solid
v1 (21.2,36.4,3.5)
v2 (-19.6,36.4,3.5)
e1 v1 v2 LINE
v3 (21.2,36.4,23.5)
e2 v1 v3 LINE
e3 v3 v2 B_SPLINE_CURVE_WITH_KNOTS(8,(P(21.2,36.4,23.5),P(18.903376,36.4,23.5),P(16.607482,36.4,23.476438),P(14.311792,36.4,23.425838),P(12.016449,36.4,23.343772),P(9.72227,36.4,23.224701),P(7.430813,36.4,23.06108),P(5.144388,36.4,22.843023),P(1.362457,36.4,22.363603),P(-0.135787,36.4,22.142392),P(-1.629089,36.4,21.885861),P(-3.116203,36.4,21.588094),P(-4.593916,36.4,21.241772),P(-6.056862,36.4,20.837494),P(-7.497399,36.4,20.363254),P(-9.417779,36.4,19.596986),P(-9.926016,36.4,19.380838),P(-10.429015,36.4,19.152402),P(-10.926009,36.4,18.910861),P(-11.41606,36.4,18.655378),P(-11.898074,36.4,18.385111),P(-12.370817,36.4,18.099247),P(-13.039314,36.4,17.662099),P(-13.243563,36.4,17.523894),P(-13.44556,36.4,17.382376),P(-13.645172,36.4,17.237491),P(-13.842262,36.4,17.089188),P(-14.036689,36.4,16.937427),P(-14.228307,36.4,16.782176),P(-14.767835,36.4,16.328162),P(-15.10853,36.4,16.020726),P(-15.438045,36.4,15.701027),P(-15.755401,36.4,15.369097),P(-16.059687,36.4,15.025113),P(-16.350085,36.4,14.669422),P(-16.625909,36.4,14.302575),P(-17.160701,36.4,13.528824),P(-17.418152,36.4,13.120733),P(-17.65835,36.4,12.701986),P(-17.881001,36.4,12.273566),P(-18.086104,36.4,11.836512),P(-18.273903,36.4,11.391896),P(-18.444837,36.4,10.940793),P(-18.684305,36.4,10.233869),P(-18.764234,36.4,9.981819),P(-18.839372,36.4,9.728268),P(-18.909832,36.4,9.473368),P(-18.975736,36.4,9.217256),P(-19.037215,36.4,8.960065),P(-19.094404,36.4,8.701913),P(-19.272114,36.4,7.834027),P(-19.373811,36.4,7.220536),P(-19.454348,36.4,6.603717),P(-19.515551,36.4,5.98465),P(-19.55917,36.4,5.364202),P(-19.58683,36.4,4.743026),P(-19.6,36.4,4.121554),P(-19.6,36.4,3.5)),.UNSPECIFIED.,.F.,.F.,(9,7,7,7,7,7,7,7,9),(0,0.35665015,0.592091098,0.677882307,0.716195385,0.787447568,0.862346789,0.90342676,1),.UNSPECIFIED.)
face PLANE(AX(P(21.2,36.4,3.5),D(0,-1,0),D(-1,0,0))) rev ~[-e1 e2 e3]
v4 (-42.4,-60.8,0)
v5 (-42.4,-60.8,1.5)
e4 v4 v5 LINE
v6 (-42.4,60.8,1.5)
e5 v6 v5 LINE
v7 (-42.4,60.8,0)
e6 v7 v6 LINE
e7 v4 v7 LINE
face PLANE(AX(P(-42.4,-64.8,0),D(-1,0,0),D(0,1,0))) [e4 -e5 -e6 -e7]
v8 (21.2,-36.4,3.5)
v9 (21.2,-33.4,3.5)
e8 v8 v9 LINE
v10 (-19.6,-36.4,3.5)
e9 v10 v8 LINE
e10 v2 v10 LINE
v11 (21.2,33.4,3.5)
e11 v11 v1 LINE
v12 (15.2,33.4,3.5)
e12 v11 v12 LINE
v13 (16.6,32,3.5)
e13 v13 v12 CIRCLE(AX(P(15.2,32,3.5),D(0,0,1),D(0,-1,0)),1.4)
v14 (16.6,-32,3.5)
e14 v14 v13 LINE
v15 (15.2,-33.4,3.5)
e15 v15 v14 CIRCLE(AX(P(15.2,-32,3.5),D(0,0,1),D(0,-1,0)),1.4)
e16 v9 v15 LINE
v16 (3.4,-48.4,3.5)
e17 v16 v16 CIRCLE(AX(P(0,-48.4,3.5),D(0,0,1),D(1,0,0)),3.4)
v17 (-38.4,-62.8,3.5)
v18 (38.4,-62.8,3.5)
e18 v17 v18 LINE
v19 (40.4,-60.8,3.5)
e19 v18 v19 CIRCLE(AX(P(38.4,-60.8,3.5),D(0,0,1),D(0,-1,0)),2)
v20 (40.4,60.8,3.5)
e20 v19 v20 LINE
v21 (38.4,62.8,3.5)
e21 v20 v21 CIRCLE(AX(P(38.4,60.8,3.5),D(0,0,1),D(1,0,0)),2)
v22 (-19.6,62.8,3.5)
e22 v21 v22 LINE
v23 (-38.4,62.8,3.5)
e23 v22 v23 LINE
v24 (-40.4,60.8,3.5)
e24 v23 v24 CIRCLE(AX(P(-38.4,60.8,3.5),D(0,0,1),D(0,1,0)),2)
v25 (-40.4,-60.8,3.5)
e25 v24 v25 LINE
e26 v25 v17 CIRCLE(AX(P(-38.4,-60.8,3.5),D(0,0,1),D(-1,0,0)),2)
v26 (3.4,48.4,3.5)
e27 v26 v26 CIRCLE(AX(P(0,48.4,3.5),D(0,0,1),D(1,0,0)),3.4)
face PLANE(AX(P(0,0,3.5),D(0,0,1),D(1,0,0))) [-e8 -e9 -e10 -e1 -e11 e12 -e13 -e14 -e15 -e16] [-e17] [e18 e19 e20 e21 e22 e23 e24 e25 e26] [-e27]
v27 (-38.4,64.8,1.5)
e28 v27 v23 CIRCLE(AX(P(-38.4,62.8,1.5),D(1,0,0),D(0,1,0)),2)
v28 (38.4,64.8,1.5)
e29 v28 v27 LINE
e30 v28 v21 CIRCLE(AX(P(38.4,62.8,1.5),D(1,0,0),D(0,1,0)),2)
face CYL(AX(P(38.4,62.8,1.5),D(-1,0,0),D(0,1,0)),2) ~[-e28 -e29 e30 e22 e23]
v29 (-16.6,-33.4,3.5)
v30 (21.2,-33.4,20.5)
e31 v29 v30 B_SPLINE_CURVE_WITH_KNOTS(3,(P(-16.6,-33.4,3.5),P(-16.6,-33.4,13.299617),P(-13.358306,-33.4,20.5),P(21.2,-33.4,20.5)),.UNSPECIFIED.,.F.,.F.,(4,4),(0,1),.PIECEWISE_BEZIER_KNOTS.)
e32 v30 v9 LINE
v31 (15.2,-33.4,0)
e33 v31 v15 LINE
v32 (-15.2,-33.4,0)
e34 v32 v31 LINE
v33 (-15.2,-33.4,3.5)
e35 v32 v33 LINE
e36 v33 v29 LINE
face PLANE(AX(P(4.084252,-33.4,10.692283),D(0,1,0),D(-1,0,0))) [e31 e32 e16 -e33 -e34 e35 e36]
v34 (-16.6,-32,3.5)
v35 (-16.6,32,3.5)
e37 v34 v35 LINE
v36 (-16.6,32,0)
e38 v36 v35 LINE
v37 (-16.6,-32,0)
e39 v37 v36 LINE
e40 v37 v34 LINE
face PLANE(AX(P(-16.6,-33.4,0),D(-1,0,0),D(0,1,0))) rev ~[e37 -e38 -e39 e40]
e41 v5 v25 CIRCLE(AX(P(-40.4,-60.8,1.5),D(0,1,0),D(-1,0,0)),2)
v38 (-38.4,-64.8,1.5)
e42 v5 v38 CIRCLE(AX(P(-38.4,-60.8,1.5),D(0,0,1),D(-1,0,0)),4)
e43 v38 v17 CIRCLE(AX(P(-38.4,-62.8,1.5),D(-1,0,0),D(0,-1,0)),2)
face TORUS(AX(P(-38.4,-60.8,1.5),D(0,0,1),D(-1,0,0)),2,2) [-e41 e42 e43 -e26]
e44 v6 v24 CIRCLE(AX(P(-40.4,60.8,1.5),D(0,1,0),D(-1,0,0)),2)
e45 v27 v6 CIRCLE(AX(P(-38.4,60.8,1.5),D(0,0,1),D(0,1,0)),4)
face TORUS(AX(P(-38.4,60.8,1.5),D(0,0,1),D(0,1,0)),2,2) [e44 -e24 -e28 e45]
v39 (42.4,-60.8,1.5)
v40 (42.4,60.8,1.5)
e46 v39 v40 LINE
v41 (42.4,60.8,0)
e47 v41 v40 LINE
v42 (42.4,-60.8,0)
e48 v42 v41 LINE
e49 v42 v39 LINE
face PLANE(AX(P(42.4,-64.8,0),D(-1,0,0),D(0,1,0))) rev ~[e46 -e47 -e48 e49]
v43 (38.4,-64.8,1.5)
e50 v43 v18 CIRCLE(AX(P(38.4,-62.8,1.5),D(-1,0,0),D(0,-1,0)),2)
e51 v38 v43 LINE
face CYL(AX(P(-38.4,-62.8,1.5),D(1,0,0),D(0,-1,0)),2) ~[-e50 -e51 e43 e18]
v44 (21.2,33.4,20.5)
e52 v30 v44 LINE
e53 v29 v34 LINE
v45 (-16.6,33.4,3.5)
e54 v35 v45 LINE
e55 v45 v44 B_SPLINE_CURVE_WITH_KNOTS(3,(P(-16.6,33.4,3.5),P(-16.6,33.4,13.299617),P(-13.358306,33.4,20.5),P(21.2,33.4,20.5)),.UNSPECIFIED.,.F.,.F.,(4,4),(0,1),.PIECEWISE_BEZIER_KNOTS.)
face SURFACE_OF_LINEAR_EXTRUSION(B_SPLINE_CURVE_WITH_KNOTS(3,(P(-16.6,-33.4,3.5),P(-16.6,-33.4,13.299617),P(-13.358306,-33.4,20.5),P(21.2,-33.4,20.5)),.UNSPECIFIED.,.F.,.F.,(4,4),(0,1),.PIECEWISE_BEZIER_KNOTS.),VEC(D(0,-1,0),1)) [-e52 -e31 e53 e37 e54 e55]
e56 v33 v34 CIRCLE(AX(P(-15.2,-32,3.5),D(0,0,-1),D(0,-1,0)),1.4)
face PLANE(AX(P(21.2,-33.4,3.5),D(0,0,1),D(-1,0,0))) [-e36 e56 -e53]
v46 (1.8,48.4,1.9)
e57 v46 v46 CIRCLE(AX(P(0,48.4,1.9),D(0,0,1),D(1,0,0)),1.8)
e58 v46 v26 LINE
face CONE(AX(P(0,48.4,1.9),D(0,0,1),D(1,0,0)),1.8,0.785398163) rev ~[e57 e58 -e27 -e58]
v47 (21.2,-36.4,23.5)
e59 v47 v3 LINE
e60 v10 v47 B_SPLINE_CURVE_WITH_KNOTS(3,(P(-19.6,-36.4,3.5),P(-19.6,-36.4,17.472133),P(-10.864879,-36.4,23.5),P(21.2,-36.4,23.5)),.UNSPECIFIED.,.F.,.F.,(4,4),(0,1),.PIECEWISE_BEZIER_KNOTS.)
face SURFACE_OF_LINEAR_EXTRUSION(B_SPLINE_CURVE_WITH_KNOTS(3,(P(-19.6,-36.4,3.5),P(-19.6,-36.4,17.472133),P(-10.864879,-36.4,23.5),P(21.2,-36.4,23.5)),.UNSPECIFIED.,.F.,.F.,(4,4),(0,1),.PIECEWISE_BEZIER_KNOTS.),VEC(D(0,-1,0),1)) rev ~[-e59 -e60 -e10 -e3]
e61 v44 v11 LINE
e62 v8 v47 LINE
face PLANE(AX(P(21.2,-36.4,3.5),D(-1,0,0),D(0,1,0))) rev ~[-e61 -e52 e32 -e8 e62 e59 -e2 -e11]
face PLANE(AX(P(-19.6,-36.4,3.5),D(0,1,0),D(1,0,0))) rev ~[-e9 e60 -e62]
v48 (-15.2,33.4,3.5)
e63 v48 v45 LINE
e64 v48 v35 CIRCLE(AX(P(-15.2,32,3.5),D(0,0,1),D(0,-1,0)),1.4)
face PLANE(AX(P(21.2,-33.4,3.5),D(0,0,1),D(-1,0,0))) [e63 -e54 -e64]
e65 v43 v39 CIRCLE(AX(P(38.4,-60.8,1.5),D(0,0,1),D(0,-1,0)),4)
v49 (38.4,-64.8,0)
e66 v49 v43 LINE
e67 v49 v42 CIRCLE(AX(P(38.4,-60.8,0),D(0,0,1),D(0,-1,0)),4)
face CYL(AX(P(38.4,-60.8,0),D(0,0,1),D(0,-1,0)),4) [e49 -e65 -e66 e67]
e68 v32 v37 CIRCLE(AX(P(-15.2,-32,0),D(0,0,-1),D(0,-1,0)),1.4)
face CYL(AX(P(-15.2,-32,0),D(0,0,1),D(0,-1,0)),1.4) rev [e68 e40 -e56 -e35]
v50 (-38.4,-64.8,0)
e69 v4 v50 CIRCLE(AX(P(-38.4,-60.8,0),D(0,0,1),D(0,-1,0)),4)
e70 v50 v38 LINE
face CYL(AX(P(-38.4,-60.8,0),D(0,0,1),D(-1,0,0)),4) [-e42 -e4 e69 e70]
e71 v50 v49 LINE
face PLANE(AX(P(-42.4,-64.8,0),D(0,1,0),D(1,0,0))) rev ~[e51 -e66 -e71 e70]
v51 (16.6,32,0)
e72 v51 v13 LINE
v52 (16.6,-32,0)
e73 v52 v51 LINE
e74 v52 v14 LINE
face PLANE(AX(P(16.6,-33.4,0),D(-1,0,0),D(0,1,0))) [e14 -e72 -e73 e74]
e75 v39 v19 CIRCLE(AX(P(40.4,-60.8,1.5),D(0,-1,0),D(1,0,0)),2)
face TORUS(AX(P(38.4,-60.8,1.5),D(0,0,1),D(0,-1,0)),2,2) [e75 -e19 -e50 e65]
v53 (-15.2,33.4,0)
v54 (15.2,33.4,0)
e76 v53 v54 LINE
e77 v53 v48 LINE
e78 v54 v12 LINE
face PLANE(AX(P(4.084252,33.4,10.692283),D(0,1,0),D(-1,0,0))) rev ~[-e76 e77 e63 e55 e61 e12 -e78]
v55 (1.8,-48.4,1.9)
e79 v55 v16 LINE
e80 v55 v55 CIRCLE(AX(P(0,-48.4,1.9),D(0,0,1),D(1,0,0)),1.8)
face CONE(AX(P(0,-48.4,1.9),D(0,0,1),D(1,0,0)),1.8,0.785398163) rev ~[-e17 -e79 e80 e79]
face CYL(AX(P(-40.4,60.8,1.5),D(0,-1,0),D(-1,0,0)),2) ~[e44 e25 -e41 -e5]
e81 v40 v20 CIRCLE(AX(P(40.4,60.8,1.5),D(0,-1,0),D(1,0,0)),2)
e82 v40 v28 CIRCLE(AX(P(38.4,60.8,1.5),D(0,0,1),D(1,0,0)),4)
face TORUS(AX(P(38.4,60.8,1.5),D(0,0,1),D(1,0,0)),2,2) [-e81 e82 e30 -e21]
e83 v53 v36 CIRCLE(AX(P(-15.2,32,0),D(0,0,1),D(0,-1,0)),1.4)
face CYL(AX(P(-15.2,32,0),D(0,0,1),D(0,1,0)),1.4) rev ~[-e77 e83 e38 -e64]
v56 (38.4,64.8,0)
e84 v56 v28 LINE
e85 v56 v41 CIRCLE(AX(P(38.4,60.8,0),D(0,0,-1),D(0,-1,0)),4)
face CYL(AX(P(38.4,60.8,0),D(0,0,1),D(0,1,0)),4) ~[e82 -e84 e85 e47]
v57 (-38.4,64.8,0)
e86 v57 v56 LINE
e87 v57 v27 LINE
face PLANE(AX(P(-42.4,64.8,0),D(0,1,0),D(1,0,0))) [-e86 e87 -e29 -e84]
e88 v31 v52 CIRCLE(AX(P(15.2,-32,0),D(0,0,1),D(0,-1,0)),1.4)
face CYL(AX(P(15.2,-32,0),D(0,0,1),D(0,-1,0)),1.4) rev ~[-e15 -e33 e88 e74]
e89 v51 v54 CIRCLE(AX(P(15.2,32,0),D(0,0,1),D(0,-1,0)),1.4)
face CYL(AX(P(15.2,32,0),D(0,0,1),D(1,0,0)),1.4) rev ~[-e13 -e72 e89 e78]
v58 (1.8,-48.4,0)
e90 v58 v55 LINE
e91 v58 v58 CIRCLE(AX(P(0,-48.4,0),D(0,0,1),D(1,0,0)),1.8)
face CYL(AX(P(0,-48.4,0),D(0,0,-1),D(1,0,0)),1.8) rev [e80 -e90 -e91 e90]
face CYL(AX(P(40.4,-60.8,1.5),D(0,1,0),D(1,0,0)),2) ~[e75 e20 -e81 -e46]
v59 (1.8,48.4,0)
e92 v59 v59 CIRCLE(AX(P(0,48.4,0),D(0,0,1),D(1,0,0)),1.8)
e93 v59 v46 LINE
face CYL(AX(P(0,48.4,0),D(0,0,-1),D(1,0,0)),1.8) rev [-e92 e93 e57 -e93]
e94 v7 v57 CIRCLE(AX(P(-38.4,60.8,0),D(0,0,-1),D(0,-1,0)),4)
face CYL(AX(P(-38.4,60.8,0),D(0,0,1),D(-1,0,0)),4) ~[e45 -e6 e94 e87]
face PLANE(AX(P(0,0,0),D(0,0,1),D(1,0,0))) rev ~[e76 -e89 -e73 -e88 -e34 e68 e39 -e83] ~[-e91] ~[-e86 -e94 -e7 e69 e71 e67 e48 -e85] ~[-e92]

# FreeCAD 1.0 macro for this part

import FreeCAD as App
import Part
import Sketcher


def edges_at(feature, points):
    """Names of the edges that pass closest to the given points."""
    edges = feature.Shape.Edges
    near = lambda p: min(range(len(edges)), key=lambda i: edges[i].distToShape(Part.Vertex(*p))[0])
    return sorted({f"Edge{near(p) + 1}" for p in points})

doc = App.newDocument("Part")
body = doc.addObject("PartDesign::Body", "Body")

sketch1 = doc.addObject("Sketcher::SketchObject", "Sketch")
body.addObject(sketch1)
sketch1.AttachmentSupport = (doc.XY_Plane, [""])
sketch1.MapMode = "FlatFace"
sketch1.addGeometry([
    Part.LineSegment(App.Vector(-42.4, 64.8, 0), App.Vector(-42.4, -64.8, 0)),
    Part.LineSegment(App.Vector(-42.4, -64.8, 0), App.Vector(42.4, -64.8, 0)),
    Part.LineSegment(App.Vector(42.4, -64.8, 0), App.Vector(42.4, 64.8, 0)),
    Part.LineSegment(App.Vector(42.4, 64.8, 0), App.Vector(-42.4, 64.8, 0)),
    Part.Circle(App.Vector(0, -48.4, 0), App.Vector(0, 0, 1), 1.8),
    Part.LineSegment(App.Vector(16.6, -33.4, 0), App.Vector(-16.6, -33.4, 0)),
    Part.LineSegment(App.Vector(-16.6, -33.4, 0), App.Vector(-16.6, 33.4, 0)),
    Part.LineSegment(App.Vector(-16.6, 33.4, 0), App.Vector(16.6, 33.4, 0)),
    Part.LineSegment(App.Vector(16.6, 33.4, 0), App.Vector(16.6, -33.4, 0)),
    Part.Circle(App.Vector(0, 48.4, 0), App.Vector(0, 0, 1), 1.8),
], False)
sketch1.addConstraint([
    Sketcher.Constraint("Coincident", 0, 2, 1, 1),
    Sketcher.Constraint("Coincident", 1, 2, 2, 1),
    Sketcher.Constraint("Coincident", 2, 2, 3, 1),
    Sketcher.Constraint("Coincident", 3, 2, 0, 1),
    Sketcher.Constraint("Coincident", 5, 2, 6, 1),
    Sketcher.Constraint("Coincident", 6, 2, 7, 1),
    Sketcher.Constraint("Coincident", 7, 2, 8, 1),
    Sketcher.Constraint("Coincident", 8, 2, 5, 1),
    Sketcher.Constraint("Vertical", 0),
    Sketcher.Constraint("Horizontal", 1),
    Sketcher.Constraint("Vertical", 2),
    Sketcher.Constraint("Horizontal", 3),
    Sketcher.Constraint("Horizontal", 5),
    Sketcher.Constraint("Vertical", 6),
    Sketcher.Constraint("Horizontal", 7),
    Sketcher.Constraint("Vertical", 8),
    Sketcher.Constraint("Equal", 4, 9),
    Sketcher.Constraint("Symmetric", 4, 3, 9, 3, -1, 1),
    Sketcher.Constraint("Symmetric", 0, 2, 2, 2, -1, 1),
    Sketcher.Constraint("Symmetric", 5, 2, 7, 2, -1, 1),
    Sketcher.Constraint("PointOnObject", 4, 3, -2),
    Sketcher.Constraint("Diameter", 4, 3.6),
    Sketcher.Constraint("DistanceX", 1, 1, 1, 2, 84.8),
    Sketcher.Constraint("DistanceX", 5, 2, 5, 1, 33.2),
    Sketcher.Constraint("DistanceY", 0, 2, 0, 1, 129.6),
    Sketcher.Constraint("DistanceY", 6, 1, 6, 2, 66.8),
    Sketcher.Constraint("DistanceY", 4, 3, 5, 2, 15.0),
])
pad1 = doc.addObject("PartDesign::Pad", "Pad")
body.addObject(pad1)
pad1.Profile = sketch1
pad1.Length = 3.5
doc.recompute()

chamfer = doc.addObject("PartDesign::Chamfer", "Chamfer")
body.addObject(chamfer)
chamfer.Base = (pad1, edges_at(pad1, [(-1.8, -48.4, 3.5), (-1.8, 48.4, 3.5)]))
chamfer.Size = 1.6
doc.recompute()

fillet = doc.addObject("PartDesign::Fillet", "Fillet")
body.addObject(fillet)
fillet.Base = (chamfer, edges_at(chamfer, [
    (42.4, 64.8, 1.75),
    (-42.4, 64.8, 1.75),
    (42.4, -64.8, 1.75),
    (-42.4, -64.8, 1.75),
]))
fillet.Radius = 4
doc.recompute()

fillet2 = doc.addObject("PartDesign::Fillet", "Fillet001")
body.addObject(fillet2)
fillet2.Base = (fillet, edges_at(fillet, [
    (-41.228, -63.628, 3.5),
    (0, -64.8, 3.5),
    (41.228, -63.628, 3.5),
    (42.4, 0, 3.5),
    (41.228, 63.628, 3.5),
    (0, 64.8, 3.5),
    (-41.228, 63.628, 3.5),
    (-42.4, 0, 3.5),
]))
fillet2.Radius = 2
doc.recompute()

fillet3 = doc.addObject("PartDesign::Fillet", "Fillet002")
body.addObject(fillet3)
fillet3.Base = (fillet2, edges_at(fillet2, [
    (-16.6, -33.4, 1.75),
    (16.6, 33.4, 1.75),
    (16.6, -33.4, 1.75),
    (-16.6, 33.4, 1.75),
]))
fillet3.Radius = 1.4

sketch2 = doc.addObject("Sketcher::SketchObject", "Sketch001")
body.addObject(sketch2)
sketch2.AttachmentSupport = (doc.XY_Plane, [""])
sketch2.MapMode = "FlatFace"
sketch2.AttachmentOffset = App.Placement(App.Vector(0, 0, 3.5), App.Rotation())
sketch2.addGeometry([
    Part.LineSegment(App.Vector(21.2, 36.4, 0), App.Vector(-19.6, 36.4, 0)),
    Part.LineSegment(App.Vector(-19.6, 36.4, 0), App.Vector(-19.6, -36.4, 0)),
    Part.LineSegment(App.Vector(-19.6, -36.4, 0), App.Vector(21.2, -36.4, 0)),
    Part.LineSegment(App.Vector(21.2, -36.4, 0), App.Vector(21.2, 36.4, 0)),
], False)
sketch2.addConstraint([
    Sketcher.Constraint("Coincident", 0, 2, 1, 1),
    Sketcher.Constraint("Coincident", 1, 2, 2, 1),
    Sketcher.Constraint("Coincident", 2, 2, 3, 1),
    Sketcher.Constraint("Coincident", 3, 2, 0, 1),
    Sketcher.Constraint("Horizontal", 0),
    Sketcher.Constraint("Vertical", 1),
    Sketcher.Constraint("Horizontal", 2),
    Sketcher.Constraint("Vertical", 3),
    Sketcher.Constraint("DistanceX", 0, 2, 0, 1, 40.8),
    Sketcher.Constraint("DistanceY", 1, 2, 1, 1, 72.8),
    Sketcher.Constraint("DistanceX", 0, 2, -1, 1, 19.6),
    Sketcher.Constraint("DistanceY", -1, 1, 0, 2, 36.4),
])
pad2 = doc.addObject("PartDesign::Pad", "Pad001")
body.addObject(pad2)
pad2.Profile = sketch2
pad2.Length = 20

sketch3 = doc.addObject("Sketcher::SketchObject", "Sketch002")
body.addObject(sketch3)
sketch3.AttachmentSupport = (doc.XZ_Plane, [""])
sketch3.MapMode = "FlatFace"
sketch3.AttachmentOffset = App.Placement(App.Vector(0, 0, 33.4), App.Rotation())
sketch3.addGeometry([
    Part.LineSegment(App.Vector(21.2, 3.5, 0), App.Vector(21.2, 20.5, 0)),
    Part.BSplineCurve([App.Vector(-16.6, 3.5, 0), App.Vector(-16.6, 13.299617, 0), App.Vector(-13.358306, 20.5, 0), App.Vector(21.2, 20.5, 0)], [4, 4], [0, 1], False, 3, [1, 1, 1, 1], False),
    Part.LineSegment(App.Vector(-16.6, 3.5, 0), App.Vector(21.2, 3.5, 0)),
], False)
sketch3.addConstraint([
    Sketcher.Constraint("Block", 1),
    Sketcher.Constraint("Coincident", 0, 2, 1, 2),
    Sketcher.Constraint("Coincident", 1, 1, 2, 1),
    Sketcher.Constraint("Coincident", 2, 2, 0, 1),
    Sketcher.Constraint("Vertical", 0),
    Sketcher.Constraint("Horizontal", 2),
])
pocket1 = doc.addObject("PartDesign::Pocket", "Pocket")
body.addObject(pocket1)
pocket1.Profile = sketch3
pocket1.Length = 66.8

sketch4 = doc.addObject("Sketcher::SketchObject", "Sketch003")
body.addObject(sketch4)
sketch4.AttachmentSupport = (doc.XZ_Plane, [""])
sketch4.MapMode = "FlatFace"
sketch4.AttachmentOffset = App.Placement(App.Vector(0, 0, 36.4), App.Rotation())
sketch4.addGeometry([
    Part.BSplineCurve([App.Vector(-19.6, 3.5, 0), App.Vector(-19.6, 17.472133, 0), App.Vector(-10.864879, 23.5, 0), App.Vector(21.2, 23.5, 0)], [4, 4], [0, 1], False, 3, [1, 1, 1, 1], False),
    Part.LineSegment(App.Vector(21.2, 23.5, 0), App.Vector(-19.6, 23.5, 0)),
    Part.LineSegment(App.Vector(-19.6, 23.5, 0), App.Vector(-19.6, 3.5, 0)),
], False)
sketch4.addConstraint([
    Sketcher.Constraint("Block", 0),
    Sketcher.Constraint("Coincident", 0, 2, 1, 1),
    Sketcher.Constraint("Coincident", 1, 2, 2, 1),
    Sketcher.Constraint("Coincident", 2, 2, 0, 1),
    Sketcher.Constraint("Horizontal", 1),
    Sketcher.Constraint("Vertical", 2),
])
pocket2 = doc.addObject("PartDesign::Pocket", "Pocket001")
body.addObject(pocket2)
pocket2.Profile = sketch4
pocket2.Type = "ThroughAll"

doc.recompute()
